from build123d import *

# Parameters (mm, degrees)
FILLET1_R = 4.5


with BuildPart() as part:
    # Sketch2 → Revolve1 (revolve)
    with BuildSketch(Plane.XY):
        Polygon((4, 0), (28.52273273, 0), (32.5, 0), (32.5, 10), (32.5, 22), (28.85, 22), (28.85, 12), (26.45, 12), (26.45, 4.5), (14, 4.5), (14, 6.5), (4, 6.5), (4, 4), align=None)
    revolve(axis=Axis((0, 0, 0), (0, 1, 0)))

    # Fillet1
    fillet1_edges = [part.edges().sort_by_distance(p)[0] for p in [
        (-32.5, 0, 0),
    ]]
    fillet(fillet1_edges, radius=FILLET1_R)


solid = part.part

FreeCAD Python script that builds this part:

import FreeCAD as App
import Part
import Sketcher
from FreeCAD import Vector


def edges_at(feature, points):
    """Names of the edges that pass closest to the given points."""
    edges = feature.Shape.Edges
    near = lambda p: min(range(len(edges)), key=lambda i: edges[i].distToShape(Part.Vertex(*p))[0])
    return sorted({f"Edge{near(p) + 1}" for p in points})


def add_polygon(sketch, points):
    """Adds a closed chain of lines whose ends are joined by coincident constraints."""
    first, n = sketch.GeometryCount, len(points)
    for a, b in zip(points, points[1:] + points[:1]):
        sketch.addGeometry(Part.LineSegment(App.Vector(*a, 0), App.Vector(*b, 0)), False)
    for i in range(n):
        sketch.addConstraint(Sketcher.Constraint("Coincident", first + i, 2, first + (i + 1) % n, 1))

doc = App.newDocument("Part")
body = doc.addObject("PartDesign::Body", "Body")

sketch1 = body.newObject("Sketcher::SketchObject", "Sketch")
sketch1.AttachmentSupport = (doc.getObject("XY_Plane"), [""])
sketch1.MapMode = "FlatFace"
add_polygon(sketch1, [(4, 0), (32.5, 0), (32.5, 22), (28.9, 22), (28.9, 12), (26.4, 12), (26.4, 4.5), (14, 4.5), (14, 6.5), (4, 6.5)])
sketch1.addConstraint([
    Sketcher.Constraint("Horizontal", 0),
    Sketcher.Constraint("Vertical", 1),
    Sketcher.Constraint("Horizontal", 2),
    Sketcher.Constraint("Vertical", 3),
    Sketcher.Constraint("Horizontal", 4),
    Sketcher.Constraint("Vertical", 5),
    Sketcher.Constraint("Horizontal", 6),
    Sketcher.Constraint("Vertical", 7),
    Sketcher.Constraint("Horizontal", 8),
    Sketcher.Constraint("Vertical", 9),
    Sketcher.Constraint("PointOnObject", 0, 2, -1),
    Sketcher.Constraint("Equal", 8, 3),
    Sketcher.Constraint("DistanceX", 8, 2, 8, 1, 10.0),
    Sketcher.Constraint("DistanceY", 1, 1, 1, 2, 22.0),
    Sketcher.Constraint("DistanceY", 7, 1, 7, 2, 2.0),
    Sketcher.Constraint("DistanceX", 0, 1, 0, 2, 28.5),
    Sketcher.Constraint("DistanceX", 4, 2, 4, 1, 2.4),
    Sketcher.Constraint("DistanceY", 5, 2, 5, 1, 7.5),
    Sketcher.Constraint("DistanceX", -1, 1, 6, 2, 14.0),
    Sketcher.Constraint("DistanceX", 2, 2, 2, 1, 3.65),
])
revolution = body.newObject("PartDesign::Revolution", "Revolution")
revolution.Profile = sketch1
revolution.ReferenceAxis = (sketch1, ["V_Axis"])
revolution.Angle = 360
doc.recompute()

fillet = body.newObject("PartDesign::Fillet", "Fillet")
fillet.Base = (revolution, edges_at(revolution, [(-32.5, 0, 0)]))
fillet.Radius = 4.5

doc.recompute()
